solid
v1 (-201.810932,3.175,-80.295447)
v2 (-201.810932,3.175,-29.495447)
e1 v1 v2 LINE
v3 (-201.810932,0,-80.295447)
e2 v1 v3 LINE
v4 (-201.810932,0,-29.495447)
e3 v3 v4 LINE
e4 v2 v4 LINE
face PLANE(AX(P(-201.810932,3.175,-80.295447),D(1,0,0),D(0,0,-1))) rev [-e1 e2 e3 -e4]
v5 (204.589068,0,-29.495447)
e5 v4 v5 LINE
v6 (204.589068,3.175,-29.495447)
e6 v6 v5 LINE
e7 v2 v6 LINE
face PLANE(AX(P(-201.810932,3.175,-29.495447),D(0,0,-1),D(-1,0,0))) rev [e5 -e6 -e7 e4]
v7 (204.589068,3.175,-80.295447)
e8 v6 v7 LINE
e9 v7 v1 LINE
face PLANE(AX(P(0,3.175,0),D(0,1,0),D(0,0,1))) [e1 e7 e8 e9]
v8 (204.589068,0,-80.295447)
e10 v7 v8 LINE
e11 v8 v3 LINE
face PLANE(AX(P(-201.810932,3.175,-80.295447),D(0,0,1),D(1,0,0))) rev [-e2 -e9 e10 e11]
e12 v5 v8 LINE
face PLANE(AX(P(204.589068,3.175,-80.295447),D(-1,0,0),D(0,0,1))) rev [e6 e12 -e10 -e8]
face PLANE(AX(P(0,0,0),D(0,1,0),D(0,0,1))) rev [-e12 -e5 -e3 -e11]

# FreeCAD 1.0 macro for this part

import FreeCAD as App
import Part
import Sketcher
Q = App.Units.Quantity

doc = App.newDocument("Part")
body = doc.addObject("PartDesign::Body", "Body")

# Sketch on XZ plane
sketch1 = body.newObject("Sketcher::SketchObject", "Sketch")
sketch1.AttachmentSupport = (doc.getObject("XZ_Plane"), [""])
sketch1.MapMode = "FlatFace"
sketch1.addGeometry(Part.LineSegment(App.Vector(-201.810932, -80.295447, 0), App.Vector(-201.810932, -29.495447, 0)), False)
sketch1.addGeometry(Part.LineSegment(App.Vector(-201.810932, -29.495447, 0), App.Vector(204.589068, -29.495447, 0)), False)
sketch1.addGeometry(Part.LineSegment(App.Vector(204.589068, -29.495447, 0), App.Vector(204.589068, -80.295447, 0)), False)
sketch1.addGeometry(Part.LineSegment(App.Vector(204.589068, -80.295447, 0), App.Vector(-201.810932, -80.295447, 0)), False)
sketch1.addConstraint(Sketcher.Constraint("Coincident", 0, 2, 1, 1))
sketch1.addConstraint(Sketcher.Constraint("Coincident", 1, 2, 2, 1))
sketch1.addConstraint(Sketcher.Constraint("Coincident", 2, 2, 3, 1))
sketch1.addConstraint(Sketcher.Constraint("Coincident", 3, 2, 0, 1))
sketch1.addConstraint(Sketcher.Constraint("Vertical", 0))
sketch1.addConstraint(Sketcher.Constraint("Horizontal", 1))
sketch1.addConstraint(Sketcher.Constraint("Vertical", 2))
sketch1.addConstraint(Sketcher.Constraint("Horizontal", 3))
sketch1.addConstraint(Sketcher.Constraint("DistanceX", 1, 1, 1, 2, Q("16 in")))
sketch1.addConstraint(Sketcher.Constraint("DistanceY", 0, 1, 0, 2, Q("2 in")))
sketch1.addConstraint(Sketcher.Constraint("DistanceX", 0, 2, -1, 1, 201.810932))
sketch1.addConstraint(Sketcher.Constraint("DistanceY", 0, 2, -1, 1, 29.495447))
pad1 = body.newObject("PartDesign::Pad", "Pad")
pad1.Profile = sketch1
pad1.Length = Q("0.125 in")
pad1.Reversed = True

doc.recompute()
